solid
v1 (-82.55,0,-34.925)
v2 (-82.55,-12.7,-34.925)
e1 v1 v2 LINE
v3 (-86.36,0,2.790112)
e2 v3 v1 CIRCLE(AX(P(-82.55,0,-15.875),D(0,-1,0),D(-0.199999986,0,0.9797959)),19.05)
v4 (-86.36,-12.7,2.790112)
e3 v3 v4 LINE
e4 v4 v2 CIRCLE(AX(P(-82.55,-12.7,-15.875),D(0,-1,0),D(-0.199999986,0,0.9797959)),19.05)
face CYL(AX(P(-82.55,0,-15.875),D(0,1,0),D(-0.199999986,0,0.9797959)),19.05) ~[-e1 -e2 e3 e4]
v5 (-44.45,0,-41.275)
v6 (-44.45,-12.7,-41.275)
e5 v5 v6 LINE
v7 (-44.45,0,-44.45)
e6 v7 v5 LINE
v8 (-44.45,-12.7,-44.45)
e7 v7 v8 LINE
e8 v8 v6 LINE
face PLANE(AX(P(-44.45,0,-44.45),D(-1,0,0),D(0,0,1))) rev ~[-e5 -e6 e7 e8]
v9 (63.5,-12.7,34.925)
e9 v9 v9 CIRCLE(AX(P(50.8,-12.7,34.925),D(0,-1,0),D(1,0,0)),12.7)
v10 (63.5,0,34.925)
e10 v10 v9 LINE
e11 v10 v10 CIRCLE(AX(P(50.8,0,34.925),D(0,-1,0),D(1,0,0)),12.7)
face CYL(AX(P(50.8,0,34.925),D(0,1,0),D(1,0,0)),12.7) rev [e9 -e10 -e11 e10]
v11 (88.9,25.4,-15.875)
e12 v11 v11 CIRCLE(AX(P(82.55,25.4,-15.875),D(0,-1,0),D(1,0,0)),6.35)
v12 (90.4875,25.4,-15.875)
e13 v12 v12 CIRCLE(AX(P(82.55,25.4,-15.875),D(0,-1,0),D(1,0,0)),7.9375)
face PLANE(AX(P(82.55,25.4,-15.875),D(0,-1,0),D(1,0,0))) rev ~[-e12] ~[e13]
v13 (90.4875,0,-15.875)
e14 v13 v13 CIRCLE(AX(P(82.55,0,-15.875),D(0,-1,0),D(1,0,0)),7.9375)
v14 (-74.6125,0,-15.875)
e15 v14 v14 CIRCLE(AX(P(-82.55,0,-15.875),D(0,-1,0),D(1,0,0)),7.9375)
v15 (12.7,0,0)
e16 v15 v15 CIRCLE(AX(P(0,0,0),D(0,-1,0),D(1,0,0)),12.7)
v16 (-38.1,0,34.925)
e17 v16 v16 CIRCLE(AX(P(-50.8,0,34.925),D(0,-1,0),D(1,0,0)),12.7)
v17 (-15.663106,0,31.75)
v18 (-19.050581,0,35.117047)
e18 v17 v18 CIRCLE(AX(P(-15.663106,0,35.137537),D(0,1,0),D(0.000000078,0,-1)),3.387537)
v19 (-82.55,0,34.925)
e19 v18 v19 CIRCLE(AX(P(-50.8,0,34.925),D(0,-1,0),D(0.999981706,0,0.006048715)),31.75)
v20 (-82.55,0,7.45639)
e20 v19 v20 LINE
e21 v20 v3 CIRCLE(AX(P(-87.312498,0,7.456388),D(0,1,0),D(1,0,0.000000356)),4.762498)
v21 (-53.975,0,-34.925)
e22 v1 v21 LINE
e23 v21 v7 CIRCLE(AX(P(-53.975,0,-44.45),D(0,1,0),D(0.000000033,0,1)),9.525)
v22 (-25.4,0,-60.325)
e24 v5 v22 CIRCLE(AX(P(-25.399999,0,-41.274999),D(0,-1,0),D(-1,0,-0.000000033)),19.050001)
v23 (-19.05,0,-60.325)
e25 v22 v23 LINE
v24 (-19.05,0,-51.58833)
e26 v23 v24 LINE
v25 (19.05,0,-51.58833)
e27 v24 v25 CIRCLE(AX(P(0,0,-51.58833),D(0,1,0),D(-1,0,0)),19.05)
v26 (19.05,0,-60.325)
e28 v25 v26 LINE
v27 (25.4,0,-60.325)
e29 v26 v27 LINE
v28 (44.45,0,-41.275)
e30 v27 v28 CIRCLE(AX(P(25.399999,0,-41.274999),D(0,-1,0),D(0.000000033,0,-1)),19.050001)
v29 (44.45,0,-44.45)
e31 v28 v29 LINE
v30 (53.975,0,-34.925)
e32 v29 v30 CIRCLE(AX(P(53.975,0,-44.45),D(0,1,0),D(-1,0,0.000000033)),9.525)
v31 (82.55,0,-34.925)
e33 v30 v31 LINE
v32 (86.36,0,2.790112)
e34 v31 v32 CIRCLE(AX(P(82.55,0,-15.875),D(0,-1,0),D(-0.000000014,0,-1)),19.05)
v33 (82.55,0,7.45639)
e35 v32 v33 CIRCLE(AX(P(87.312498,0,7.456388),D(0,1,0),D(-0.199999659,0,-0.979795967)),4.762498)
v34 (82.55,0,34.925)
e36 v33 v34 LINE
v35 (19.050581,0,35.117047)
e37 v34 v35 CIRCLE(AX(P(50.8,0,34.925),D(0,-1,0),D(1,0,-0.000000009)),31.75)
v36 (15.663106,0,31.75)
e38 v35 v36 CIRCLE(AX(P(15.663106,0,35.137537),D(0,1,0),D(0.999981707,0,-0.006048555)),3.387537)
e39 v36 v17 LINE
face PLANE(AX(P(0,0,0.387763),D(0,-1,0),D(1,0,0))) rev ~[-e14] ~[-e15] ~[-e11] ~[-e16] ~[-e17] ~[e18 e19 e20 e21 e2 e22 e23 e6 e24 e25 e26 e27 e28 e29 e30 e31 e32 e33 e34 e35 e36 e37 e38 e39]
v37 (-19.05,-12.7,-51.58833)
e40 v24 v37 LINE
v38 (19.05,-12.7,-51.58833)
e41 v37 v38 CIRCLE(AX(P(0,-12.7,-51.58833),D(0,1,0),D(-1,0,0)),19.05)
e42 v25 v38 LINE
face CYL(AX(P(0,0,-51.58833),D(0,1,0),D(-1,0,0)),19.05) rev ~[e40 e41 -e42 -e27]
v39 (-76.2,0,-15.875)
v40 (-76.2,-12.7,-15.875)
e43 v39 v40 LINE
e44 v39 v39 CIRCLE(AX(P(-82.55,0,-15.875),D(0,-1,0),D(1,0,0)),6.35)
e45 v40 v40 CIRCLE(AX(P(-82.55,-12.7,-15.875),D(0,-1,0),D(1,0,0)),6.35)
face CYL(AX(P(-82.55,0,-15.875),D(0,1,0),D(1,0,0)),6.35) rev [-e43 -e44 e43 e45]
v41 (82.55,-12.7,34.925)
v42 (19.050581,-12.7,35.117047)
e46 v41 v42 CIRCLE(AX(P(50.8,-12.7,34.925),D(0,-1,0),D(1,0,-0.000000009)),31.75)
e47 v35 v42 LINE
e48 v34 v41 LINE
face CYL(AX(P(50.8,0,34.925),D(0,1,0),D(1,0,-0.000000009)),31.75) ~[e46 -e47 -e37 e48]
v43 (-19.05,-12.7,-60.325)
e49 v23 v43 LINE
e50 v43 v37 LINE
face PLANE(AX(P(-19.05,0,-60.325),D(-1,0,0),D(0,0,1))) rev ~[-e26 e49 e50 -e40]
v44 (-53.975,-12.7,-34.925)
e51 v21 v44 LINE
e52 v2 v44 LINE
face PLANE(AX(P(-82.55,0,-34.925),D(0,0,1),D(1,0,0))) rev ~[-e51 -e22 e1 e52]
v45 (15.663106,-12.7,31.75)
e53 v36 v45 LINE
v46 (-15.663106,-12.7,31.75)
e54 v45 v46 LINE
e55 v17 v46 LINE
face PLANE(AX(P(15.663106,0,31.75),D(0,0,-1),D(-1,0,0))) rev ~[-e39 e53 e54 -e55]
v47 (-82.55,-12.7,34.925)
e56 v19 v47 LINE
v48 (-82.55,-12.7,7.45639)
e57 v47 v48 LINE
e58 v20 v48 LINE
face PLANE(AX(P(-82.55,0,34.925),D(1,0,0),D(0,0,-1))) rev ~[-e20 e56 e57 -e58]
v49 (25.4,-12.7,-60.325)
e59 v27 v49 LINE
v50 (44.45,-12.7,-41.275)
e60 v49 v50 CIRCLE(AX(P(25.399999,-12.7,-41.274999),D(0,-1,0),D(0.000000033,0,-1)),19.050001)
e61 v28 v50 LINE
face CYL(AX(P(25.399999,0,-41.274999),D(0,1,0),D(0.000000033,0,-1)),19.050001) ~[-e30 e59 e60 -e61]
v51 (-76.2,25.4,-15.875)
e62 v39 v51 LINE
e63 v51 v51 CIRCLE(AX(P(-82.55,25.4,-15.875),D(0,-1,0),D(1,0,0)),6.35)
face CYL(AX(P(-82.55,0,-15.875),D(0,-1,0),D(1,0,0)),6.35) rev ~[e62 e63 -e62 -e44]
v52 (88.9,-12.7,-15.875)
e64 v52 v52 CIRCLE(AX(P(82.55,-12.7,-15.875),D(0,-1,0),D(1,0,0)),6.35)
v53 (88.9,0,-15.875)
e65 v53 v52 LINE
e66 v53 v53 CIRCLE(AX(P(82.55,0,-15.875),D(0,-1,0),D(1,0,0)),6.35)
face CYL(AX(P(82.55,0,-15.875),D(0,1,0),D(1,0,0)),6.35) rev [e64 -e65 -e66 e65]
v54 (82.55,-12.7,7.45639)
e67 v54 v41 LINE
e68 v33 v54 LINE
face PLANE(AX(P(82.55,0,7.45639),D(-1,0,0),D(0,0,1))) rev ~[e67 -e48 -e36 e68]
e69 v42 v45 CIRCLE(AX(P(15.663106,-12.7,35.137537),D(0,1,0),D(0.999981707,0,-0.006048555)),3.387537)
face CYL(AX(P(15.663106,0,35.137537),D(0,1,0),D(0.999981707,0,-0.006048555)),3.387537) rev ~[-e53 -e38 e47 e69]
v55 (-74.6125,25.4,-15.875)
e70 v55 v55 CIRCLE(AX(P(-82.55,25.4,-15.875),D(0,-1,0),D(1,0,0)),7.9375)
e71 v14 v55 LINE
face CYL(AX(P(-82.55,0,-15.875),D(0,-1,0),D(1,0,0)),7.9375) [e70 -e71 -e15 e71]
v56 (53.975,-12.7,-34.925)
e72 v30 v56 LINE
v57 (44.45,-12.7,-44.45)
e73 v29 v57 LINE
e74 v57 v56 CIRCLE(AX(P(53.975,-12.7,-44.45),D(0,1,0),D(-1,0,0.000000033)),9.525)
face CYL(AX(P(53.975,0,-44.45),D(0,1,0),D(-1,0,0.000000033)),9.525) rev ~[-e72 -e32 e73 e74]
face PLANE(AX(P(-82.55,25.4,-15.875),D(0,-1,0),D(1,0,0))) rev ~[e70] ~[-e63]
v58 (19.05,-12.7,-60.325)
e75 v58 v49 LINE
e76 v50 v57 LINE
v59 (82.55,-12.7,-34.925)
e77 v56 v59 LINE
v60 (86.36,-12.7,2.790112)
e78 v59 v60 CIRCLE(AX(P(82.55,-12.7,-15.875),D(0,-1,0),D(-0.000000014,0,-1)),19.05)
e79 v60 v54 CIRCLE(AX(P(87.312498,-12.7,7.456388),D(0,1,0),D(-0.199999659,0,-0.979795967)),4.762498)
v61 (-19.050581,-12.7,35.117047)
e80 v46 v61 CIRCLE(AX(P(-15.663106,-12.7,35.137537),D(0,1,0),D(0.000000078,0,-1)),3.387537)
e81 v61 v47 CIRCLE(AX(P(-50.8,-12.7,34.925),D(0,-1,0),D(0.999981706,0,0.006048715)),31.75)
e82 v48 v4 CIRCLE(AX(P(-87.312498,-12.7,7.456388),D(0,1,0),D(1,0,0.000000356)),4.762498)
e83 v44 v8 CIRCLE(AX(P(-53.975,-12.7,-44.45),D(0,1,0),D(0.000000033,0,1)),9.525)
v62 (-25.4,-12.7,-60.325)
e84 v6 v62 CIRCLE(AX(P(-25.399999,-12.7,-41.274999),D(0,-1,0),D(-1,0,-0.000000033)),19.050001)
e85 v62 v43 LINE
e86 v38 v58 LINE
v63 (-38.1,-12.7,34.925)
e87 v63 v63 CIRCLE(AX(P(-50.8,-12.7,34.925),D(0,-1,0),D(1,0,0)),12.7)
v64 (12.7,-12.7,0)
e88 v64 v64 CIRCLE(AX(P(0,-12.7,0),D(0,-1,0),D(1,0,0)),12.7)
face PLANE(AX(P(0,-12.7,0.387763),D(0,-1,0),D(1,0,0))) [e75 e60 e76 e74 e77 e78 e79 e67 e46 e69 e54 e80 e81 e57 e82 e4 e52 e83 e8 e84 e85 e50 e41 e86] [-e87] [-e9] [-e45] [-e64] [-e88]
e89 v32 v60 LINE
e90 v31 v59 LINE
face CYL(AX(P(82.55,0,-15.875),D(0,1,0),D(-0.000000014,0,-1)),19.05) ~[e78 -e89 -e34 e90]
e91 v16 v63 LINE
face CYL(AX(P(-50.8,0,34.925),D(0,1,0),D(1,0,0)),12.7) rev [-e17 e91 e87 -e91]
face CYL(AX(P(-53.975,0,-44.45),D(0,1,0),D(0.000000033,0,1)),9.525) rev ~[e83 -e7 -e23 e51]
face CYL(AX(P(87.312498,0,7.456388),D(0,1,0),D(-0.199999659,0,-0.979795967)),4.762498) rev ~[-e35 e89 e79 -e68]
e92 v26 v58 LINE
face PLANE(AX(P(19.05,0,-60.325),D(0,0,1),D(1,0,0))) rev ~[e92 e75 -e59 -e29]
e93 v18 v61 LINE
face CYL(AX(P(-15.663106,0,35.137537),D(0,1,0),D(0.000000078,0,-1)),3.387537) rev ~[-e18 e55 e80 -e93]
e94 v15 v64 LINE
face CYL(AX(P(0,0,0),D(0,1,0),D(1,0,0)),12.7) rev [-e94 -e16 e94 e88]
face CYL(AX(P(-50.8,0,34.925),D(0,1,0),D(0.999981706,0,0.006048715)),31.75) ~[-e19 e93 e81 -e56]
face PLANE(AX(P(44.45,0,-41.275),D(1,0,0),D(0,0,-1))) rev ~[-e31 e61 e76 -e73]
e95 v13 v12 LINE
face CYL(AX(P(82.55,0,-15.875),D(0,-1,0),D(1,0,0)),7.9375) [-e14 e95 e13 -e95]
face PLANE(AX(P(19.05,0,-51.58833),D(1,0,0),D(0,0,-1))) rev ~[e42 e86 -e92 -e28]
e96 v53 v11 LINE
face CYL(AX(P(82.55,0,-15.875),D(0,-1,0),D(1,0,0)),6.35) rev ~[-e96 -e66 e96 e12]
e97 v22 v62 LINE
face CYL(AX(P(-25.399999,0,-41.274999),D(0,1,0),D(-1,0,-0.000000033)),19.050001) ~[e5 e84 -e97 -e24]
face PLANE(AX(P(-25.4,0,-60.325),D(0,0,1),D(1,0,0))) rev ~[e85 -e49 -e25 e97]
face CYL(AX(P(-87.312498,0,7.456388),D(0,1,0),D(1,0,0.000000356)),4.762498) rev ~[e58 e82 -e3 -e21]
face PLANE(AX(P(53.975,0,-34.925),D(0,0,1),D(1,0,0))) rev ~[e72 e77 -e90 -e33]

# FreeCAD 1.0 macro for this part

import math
import FreeCAD as App
import Part
import Sketcher

V = App.Vector
Q = App.Units.Quantity

doc = App.newDocument("Part")
body = doc.addObject("PartDesign::Body", "Body")

sketch1 = body.newObject("Sketcher::SketchObject", "Sketch")
sketch1.AttachmentSupport = (doc.getObject("XZ_Plane"), [""])
sketch1.MapMode = "FlatFace"
sketch1.addGeometry(Part.LineSegment(V(82.55, 7.45639, 0), V(82.55, 34.925, 0)), False)
sketch1.addGeometry(Part.ArcOfCircle(Part.Circle(V(50.8, 34.925, 0), V(0, 0, 1), 31.75), math.radians(-0.000001), math.radians(179.653432)), False)
sketch1.addGeometry(Part.ArcOfCircle(Part.Circle(V(15.663106, 35.137537, 0), V(0, 0, 1), 3.387537), math.radians(-90.000004), math.radians(-0.346559)), False)
sketch1.addGeometry(Part.LineSegment(V(15.663106, 31.75, 0), V(-15.663106, 31.75, 0)), False)
sketch1.addGeometry(Part.ArcOfCircle(Part.Circle(V(-15.663106, 35.137537, 0), V(0, 0, 1), 3.387537), math.radians(-179.653441), math.radians(-89.999996)), False)
sketch1.addGeometry(Part.ArcOfCircle(Part.Circle(V(-50.8, 34.925, 0), V(0, 0, 1), 31.75), math.radians(0.346568), math.radians(180.000001)), False)
sketch1.addGeometry(Part.LineSegment(V(-82.55, 34.925, 0), V(-82.55, 7.45639, 0)), False)
sketch1.addGeometry(Part.ArcOfCircle(Part.Circle(V(-87.312498, 7.456388, 0), V(0, 0, 1), 4.762498), math.radians(-78.463061), math.radians(0.00002)), False)
sketch1.addGeometry(Part.ArcOfCircle(Part.Circle(V(-82.55, -15.875, 0), V(0, 0, 1), 19.05), math.radians(101.536958), math.radians(270.000001)), False)
sketch1.addGeometry(Part.LineSegment(V(-82.55, -34.925, 0), V(-53.975, -34.925, 0)), False)
sketch1.addGeometry(Part.ArcOfCircle(Part.Circle(V(-53.975, -44.45, 0), V(0, 0, 1), 9.525), math.radians(0.000002), math.radians(89.999998)), False)
sketch1.addGeometry(Part.LineSegment(V(-44.45, -44.45, 0), V(-44.45, -41.275, 0)), False)
sketch1.addGeometry(Part.ArcOfCircle(Part.Circle(V(-25.399999, -41.274999, 0), V(0, 0, 1), 19.050001), math.radians(-179.999998), math.radians(-90.000002)), False)
sketch1.addGeometry(Part.LineSegment(V(-25.4, -60.325, 0), V(-19.05, -60.325, 0)), False)
sketch1.addGeometry(Part.LineSegment(V(-19.05, -60.325, 0), V(-19.05, -51.58833, 0)), False)
sketch1.addGeometry(Part.ArcOfCircle(Part.Circle(V(0, -51.58833, 0), V(0, 0, 1), 19.05), math.radians(0), math.radians(180)), False)
sketch1.addGeometry(Part.LineSegment(V(19.05, -51.58833, 0), V(19.05, -60.325, 0)), False)
sketch1.addGeometry(Part.LineSegment(V(19.05, -60.325, 0), V(25.4, -60.325, 0)), False)
sketch1.addGeometry(Part.ArcOfCircle(Part.Circle(V(25.399999, -41.274999, 0), V(0, 0, 1), 19.050001), math.radians(-89.999998), math.radians(-0.000002)), False)
sketch1.addGeometry(Part.LineSegment(V(44.45, -41.275, 0), V(44.45, -44.45, 0)), False)
sketch1.addGeometry(Part.ArcOfCircle(Part.Circle(V(53.975, -44.45, 0), V(0, 0, 1), 9.525), math.radians(90.000002), math.radians(179.999998)), False)
sketch1.addGeometry(Part.LineSegment(V(53.975, -34.925, 0), V(82.55, -34.925, 0)), False)
sketch1.addGeometry(Part.ArcOfCircle(Part.Circle(V(82.55, -15.875, 0), V(0, 0, 1), 19.05), math.radians(-90.000001), math.radians(78.463042)), False)
sketch1.addGeometry(Part.ArcOfCircle(Part.Circle(V(87.312498, 7.456388, 0), V(0, 0, 1), 4.762498), math.radians(179.99998), math.radians(258.463061)), False)
sketch1.addGeometry(Part.Circle(V(-82.55, -15.875, 0), V(0, 0, 1), 6.35), False)
sketch1.addGeometry(Part.Circle(V(82.55, -15.875, 0), V(0, 0, 1), 6.35), False)
sketch1.addGeometry(Part.Circle(V(0, 0, 0), V(0, 0, 1), 12.7), False)
sketch1.addGeometry(Part.Circle(V(-50.8, 34.925, 0), V(0, 0, 1), 12.7), False)
sketch1.addGeometry(Part.Circle(V(50.8, 34.925, 0), V(0, 0, 1), 12.7), False)
sketch1.addConstraint(Sketcher.Constraint("Tangent", 0, 2, 1, 1))
sketch1.addConstraint(Sketcher.Constraint("Tangent", 1, 2, 2, 2))
sketch1.addConstraint(Sketcher.Constraint("Tangent", 2, 1, 3, 1))
sketch1.addConstraint(Sketcher.Constraint("Tangent", 3, 2, 4, 2))
sketch1.addConstraint(Sketcher.Constraint("Tangent", 4, 1, 5, 1))
sketch1.addConstraint(Sketcher.Constraint("Tangent", 5, 2, 6, 1))
sketch1.addConstraint(Sketcher.Constraint("Tangent", 6, 2, 7, 2))
sketch1.addConstraint(Sketcher.Constraint("Tangent", 7, 1, 8, 1))
sketch1.addConstraint(Sketcher.Constraint("Tangent", 8, 2, 9, 1))
sketch1.addConstraint(Sketcher.Constraint("Tangent", 9, 2, 10, 2))
sketch1.addConstraint(Sketcher.Constraint("Tangent", 10, 1, 11, 1))
sketch1.addConstraint(Sketcher.Constraint("Tangent", 11, 2, 12, 1))
sketch1.addConstraint(Sketcher.Constraint("Tangent", 12, 2, 13, 1))
sketch1.addConstraint(Sketcher.Constraint("Coincident", 13, 2, 14, 1))
sketch1.addConstraint(Sketcher.Constraint("Tangent", 14, 2, 15, 2))
sketch1.addConstraint(Sketcher.Constraint("Tangent", 15, 1, 16, 1))
sketch1.addConstraint(Sketcher.Constraint("Coincident", 16, 2, 17, 1))
sketch1.addConstraint(Sketcher.Constraint("Tangent", 17, 2, 18, 1))
sketch1.addConstraint(Sketcher.Constraint("Tangent", 18, 2, 19, 1))
sketch1.addConstraint(Sketcher.Constraint("Tangent", 19, 2, 20, 2))
sketch1.addConstraint(Sketcher.Constraint("Tangent", 20, 1, 21, 1))
sketch1.addConstraint(Sketcher.Constraint("Tangent", 21, 2, 22, 1))
sketch1.addConstraint(Sketcher.Constraint("Tangent", 22, 2, 23, 2))
sketch1.addConstraint(Sketcher.Constraint("Tangent", 23, 1, 0, 1))
sketch1.addConstraint(Sketcher.Constraint("Vertical", 0))
sketch1.addConstraint(Sketcher.Constraint("Horizontal", 3))
sketch1.addConstraint(Sketcher.Constraint("Vertical", 6))
sketch1.addConstraint(Sketcher.Constraint("Horizontal", 9))
sketch1.addConstraint(Sketcher.Constraint("Vertical", 11))
sketch1.addConstraint(Sketcher.Constraint("Horizontal", 13))
sketch1.addConstraint(Sketcher.Constraint("Vertical", 14))
sketch1.addConstraint(Sketcher.Constraint("Vertical", 16))
sketch1.addConstraint(Sketcher.Constraint("Horizontal", 17))
sketch1.addConstraint(Sketcher.Constraint("Vertical", 19))
sketch1.addConstraint(Sketcher.Constraint("Horizontal", 21))
sketch1.addConstraint(Sketcher.Constraint("Coincident", 26, 3, -1, 1))
sketch1.addConstraint(Sketcher.Constraint("Coincident", 24, 3, 8, 3))
sketch1.addConstraint(Sketcher.Constraint("Coincident", 25, 3, 22, 3))
sketch1.addConstraint(Sketcher.Constraint("Coincident", 27, 3, 5, 3))
sketch1.addConstraint(Sketcher.Constraint("Coincident", 28, 3, 1, 3))
sketch1.addConstraint(Sketcher.Constraint("Equal", 2, 4))
sketch1.addConstraint(Sketcher.Constraint("Equal", 1, 5))
sketch1.addConstraint(Sketcher.Constraint("Equal", 8, 12))
sketch1.addConstraint(Sketcher.Constraint("Equal", 12, 15))
sketch1.addConstraint(Sketcher.Constraint("Equal", 15, 18))
sketch1.addConstraint(Sketcher.Constraint("Equal", 10, 20))
sketch1.addConstraint(Sketcher.Constraint("Equal", 18, 22))
sketch1.addConstraint(Sketcher.Constraint("Equal", 7, 23))
sketch1.addConstraint(Sketcher.Constraint("Equal", 24, 25))
sketch1.addConstraint(Sketcher.Constraint("Equal", 26, 27))
sketch1.addConstraint(Sketcher.Constraint("Equal", 27, 28))
sketch1.addConstraint(Sketcher.Constraint("Symmetric", 0, 2, 8, 2, -1, 1))
sketch1.addConstraint(Sketcher.Constraint("Symmetric", 5, 2, 21, 2, -1, 1))
sketch1.addConstraint(Sketcher.Constraint("Symmetric", 1, 3, 5, 3, -2))
sketch1.addConstraint(Sketcher.Constraint("Symmetric", 12, 3, 18, 3, -2))
sketch1.addConstraint(Sketcher.Constraint("PointOnObject", 15, 3, -2))
sketch1.addConstraint(Sketcher.Constraint("Diameter", 26, Q("1 in")))
sketch1.addConstraint(Sketcher.Constraint("Diameter", 24, Q("0.5 in")))
sketch1.addConstraint(Sketcher.Constraint("Radius", 1, Q("1.25 in")))
sketch1.addConstraint(Sketcher.Constraint("Radius", 8, Q("0.75 in")))
sketch1.addConstraint(Sketcher.Constraint("DistanceX", -1, 1, 1, 3, Q("2 in")))
sketch1.addConstraint(Sketcher.Constraint("DistanceX", 12, 3, -1, 1, Q("1 in")))
sketch1.addConstraint(Sketcher.Constraint("Radius", 7, Q("0.1874999 in")))
sketch1.addConstraint(Sketcher.Constraint("Radius", 10, Q("0.375 in")))
sketch1.addConstraint(Sketcher.Constraint("DistanceY", 8, 3, 5, 3, Q("2 in")))
sketch1.addConstraint(Sketcher.Constraint("DistanceY", 12, 3, 8, 3, Q("1 in")))
sketch1.addConstraint(Sketcher.Constraint("DistanceY", -1, 1, 2, 1, Q("1.25 in")))
sketch1.addConstraint(Sketcher.Constraint("Radius", 2, Q("3.387537 mm")))
sketch1.addConstraint(Sketcher.Constraint("DistanceY", 14, 1, 14, 2, Q("8.73667 mm")))
pad1 = body.newObject("PartDesign::Pad", "Pad")
pad1.Profile = sketch1
pad1.Length = Q("0.5 in")

sketch2 = body.newObject("Sketcher::SketchObject", "Sketch001")
sketch2.AttachmentSupport = (doc.getObject("XZ_Plane"), [""])
sketch2.MapMode = "FlatFace"
sketch2.addGeometry(Part.Circle(V(82.55, -15.875, 0), V(0, 0, 1), 7.9375), False)
sketch2.addGeometry(Part.Circle(V(82.55, -15.875, 0), V(0, 0, 1), 6.35), False)
sketch2.addGeometry(Part.Circle(V(-82.55, -15.875, 0), V(0, 0, 1), 7.9375), False)
sketch2.addGeometry(Part.Circle(V(-82.55, -15.875, 0), V(0, 0, 1), 6.35), False)
sketch2.addConstraint(Sketcher.Constraint("Coincident", 1, 3, 0, 3))
sketch2.addConstraint(Sketcher.Constraint("Coincident", 3, 3, 2, 3))
sketch2.addConstraint(Sketcher.Constraint("Equal", 0, 2))
sketch2.addConstraint(Sketcher.Constraint("Equal", 1, 3))
sketch2.addConstraint(Sketcher.Constraint("Symmetric", 0, 3, 2, 3, -2))
sketch2.addConstraint(Sketcher.Constraint("Diameter", 1, Q("0.5 in")))
sketch2.addConstraint(Sketcher.Constraint("Diameter", 0, Q("0.625 in")))
sketch2.addConstraint(Sketcher.Constraint("DistanceX", 2, 3, 0, 3, Q("6.5 in")))
sketch2.addConstraint(Sketcher.Constraint("DistanceY", 0, 3, -1, 1, Q("0.625 in")))
pad2 = body.newObject("PartDesign::Pad", "Pad001")
pad2.Profile = sketch2
pad2.Length = Q("1 in")
pad2.Reversed = True

doc.recompute()
